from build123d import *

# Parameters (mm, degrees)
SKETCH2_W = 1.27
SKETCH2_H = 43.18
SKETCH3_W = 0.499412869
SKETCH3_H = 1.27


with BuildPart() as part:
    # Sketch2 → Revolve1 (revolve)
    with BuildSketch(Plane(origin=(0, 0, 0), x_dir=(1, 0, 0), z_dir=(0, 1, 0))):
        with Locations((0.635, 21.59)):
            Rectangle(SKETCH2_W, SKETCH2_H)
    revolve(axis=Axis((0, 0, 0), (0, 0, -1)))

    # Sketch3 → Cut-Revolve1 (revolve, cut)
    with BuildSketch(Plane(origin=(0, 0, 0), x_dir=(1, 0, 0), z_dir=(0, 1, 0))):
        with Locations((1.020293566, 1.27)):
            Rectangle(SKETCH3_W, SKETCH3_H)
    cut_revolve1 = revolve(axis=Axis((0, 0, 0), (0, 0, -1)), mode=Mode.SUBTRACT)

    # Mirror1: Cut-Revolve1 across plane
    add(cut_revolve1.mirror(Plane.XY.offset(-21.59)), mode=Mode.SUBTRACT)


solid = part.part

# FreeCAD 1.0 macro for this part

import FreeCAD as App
import Part
import Sketcher

V = App.Vector
Q = App.Units.Quantity

doc = App.newDocument("Part")
body = doc.addObject("PartDesign::Body", "Body")

# Sketch on XZ plane
sketch1 = body.newObject("Sketcher::SketchObject", "Sketch")
sketch1.AttachmentSupport = (doc.getObject("XZ_Plane"), [""])
sketch1.MapMode = "FlatFace"
sketch1.addGeometry([
    Part.LineSegment(V(0, -43.2, 0), V(0, 0, 0)),
    Part.LineSegment(V(0, 0, 0), V(1.3, 0, 0)),
    Part.LineSegment(V(1.3, 0, 0), V(1.3, -43.2, 0)),
    Part.LineSegment(V(1.3, -43.2, 0), V(0, -43.2, 0)),
], False)
sketch1.addConstraint([
    Sketcher.Constraint("Coincident", 0, 2, 1, 1),
    Sketcher.Constraint("Coincident", 1, 2, 2, 1),
    Sketcher.Constraint("Coincident", 2, 2, 3, 1),
    Sketcher.Constraint("Coincident", 3, 2, 0, 1),
    Sketcher.Constraint("Vertical", 0),
    Sketcher.Constraint("Horizontal", 1),
    Sketcher.Constraint("Vertical", 2),
    Sketcher.Constraint("Horizontal", 3),
    Sketcher.Constraint("Coincident", 0, 2, -1, 1),
    Sketcher.Constraint("DistanceY", 0, 1, 0, 2, Q("1.7 in")),
    Sketcher.Constraint("DistanceX", 1, 1, 1, 2, Q("0.05 in")),
])
revolution = body.newObject("PartDesign::Revolution", "Revolution")
revolution.Profile = sketch1
revolution.ReferenceAxis = (sketch1, ["V_Axis"])
revolution.Angle = 360

# Sketch on XZ plane
sketch2 = body.newObject("Sketcher::SketchObject", "Sketch001")
sketch2.AttachmentSupport = (doc.getObject("XZ_Plane"), [""])
sketch2.MapMode = "FlatFace"
sketch2.addGeometry([
    Part.LineSegment(V(0.77, -1.91, 0), V(0.77, -0.64, 0)),
    Part.LineSegment(V(0.77, -0.64, 0), V(1.27, -0.64, 0)),
    Part.LineSegment(V(1.27, -0.64, 0), V(1.27, -1.91, 0)),
    Part.LineSegment(V(1.27, -1.91, 0), V(0.77, -1.91, 0)),
], False)
sketch2.addConstraint([
    Sketcher.Constraint("Coincident", 0, 2, 1, 1),
    Sketcher.Constraint("Coincident", 1, 2, 2, 1),
    Sketcher.Constraint("Coincident", 2, 2, 3, 1),
    Sketcher.Constraint("Coincident", 3, 2, 0, 1),
    Sketcher.Constraint("Vertical", 0),
    Sketcher.Constraint("Horizontal", 1),
    Sketcher.Constraint("Vertical", 2),
    Sketcher.Constraint("Horizontal", 3),
    Sketcher.Constraint("DistanceY", 0, 1, 0, 2, Q("0.05 in")),
    Sketcher.Constraint("DistanceX", -1, 1, 1, 2, Q("0.05 in")),
    Sketcher.Constraint("DistanceY", 0, 2, -1, 1, Q("0.025 in")),
    Sketcher.Constraint("DistanceX", 1, 1, 1, 2, Q("0.499413 mm")),
])
groove = body.newObject("PartDesign::Groove", "Groove")
groove.Profile = sketch2
groove.ReferenceAxis = (sketch2, ["V_Axis"])
groove.Angle = 360
doc.recompute()

datumplane = body.newObject("PartDesign::Plane", "DatumPlane")
datumplane.AttachmentSupport = (doc.getObject("XY_Plane"), [""])
datumplane.MapMode = "FlatFace"
datumplane.AttachmentOffset = App.Placement(V(0, 0, -0.85 * 25.4), App.Rotation())
mirrored = body.newObject("PartDesign::Mirrored", "Mirrored")
mirrored.Originals = [groove]
mirrored.MirrorPlane = (datumplane, [""])
body.Tip = mirrored

doc.recompute()
